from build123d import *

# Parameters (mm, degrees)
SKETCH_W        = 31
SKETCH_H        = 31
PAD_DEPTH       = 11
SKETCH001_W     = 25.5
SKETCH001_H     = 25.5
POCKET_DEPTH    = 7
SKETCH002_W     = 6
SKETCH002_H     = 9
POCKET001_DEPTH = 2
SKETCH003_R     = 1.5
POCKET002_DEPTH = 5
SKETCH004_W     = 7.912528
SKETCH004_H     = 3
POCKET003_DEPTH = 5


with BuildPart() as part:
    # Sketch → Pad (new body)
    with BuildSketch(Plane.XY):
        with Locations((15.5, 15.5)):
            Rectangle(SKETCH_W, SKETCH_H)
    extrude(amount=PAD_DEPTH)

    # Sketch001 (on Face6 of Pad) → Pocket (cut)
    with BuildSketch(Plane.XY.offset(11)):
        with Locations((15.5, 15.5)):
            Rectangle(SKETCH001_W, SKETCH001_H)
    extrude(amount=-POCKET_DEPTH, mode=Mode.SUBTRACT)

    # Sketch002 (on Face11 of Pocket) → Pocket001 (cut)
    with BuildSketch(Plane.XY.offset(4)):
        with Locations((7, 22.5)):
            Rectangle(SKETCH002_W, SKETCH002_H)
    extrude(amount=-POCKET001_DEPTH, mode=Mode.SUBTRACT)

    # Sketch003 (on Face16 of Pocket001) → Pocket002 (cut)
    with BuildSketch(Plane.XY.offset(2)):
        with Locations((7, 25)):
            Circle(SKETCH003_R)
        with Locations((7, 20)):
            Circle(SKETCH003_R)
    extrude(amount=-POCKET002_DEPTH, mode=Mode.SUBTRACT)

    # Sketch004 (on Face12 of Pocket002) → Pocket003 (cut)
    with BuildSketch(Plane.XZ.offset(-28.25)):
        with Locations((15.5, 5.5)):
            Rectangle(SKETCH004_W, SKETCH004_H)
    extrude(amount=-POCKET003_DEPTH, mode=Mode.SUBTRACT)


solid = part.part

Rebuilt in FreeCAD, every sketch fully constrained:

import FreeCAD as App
import Part
import Sketcher
from FreeCAD import Vector
Q = App.Units.Quantity


def add_polygon(sketch, points):
    """Adds a closed chain of lines whose ends are joined by coincident constraints."""
    first, n = sketch.GeometryCount, len(points)
    for a, b in zip(points, points[1:] + points[:1]):
        sketch.addGeometry(Part.LineSegment(App.Vector(*a, 0), App.Vector(*b, 0)), False)
    for i in range(n):
        sketch.addConstraint(Sketcher.Constraint("Coincident", first + i, 2, first + (i + 1) % n, 1))

doc = App.newDocument("Part")
body = doc.addObject("PartDesign::Body", "Body")

sketch1 = doc.addObject("Sketcher::SketchObject", "Sketch")
body.addObject(sketch1)
sketch1.AttachmentSupport = (doc.XY_Plane, [""])
sketch1.MapMode = "FlatFace"
add_polygon(sketch1, [(0, 31), (0, 0), (31, 0), (31, 31)])
sketch1.addConstraint([
    Sketcher.Constraint("Vertical", 0),
    Sketcher.Constraint("Horizontal", 1),
    Sketcher.Constraint("Vertical", 2),
    Sketcher.Constraint("Horizontal", 3),
    Sketcher.Constraint("Coincident", 0, 2, -1, 1),
    Sketcher.Constraint("Equal", 3, 0),
    Sketcher.Constraint("DistanceX", 1, 1, 1, 2, Q("31 mm")),
])
pad1 = doc.addObject("PartDesign::Pad", "Pad")
body.addObject(pad1)
pad1.Profile = sketch1
pad1.Length = 11

sketch2 = doc.addObject("Sketcher::SketchObject", "Sketch001")
body.addObject(sketch2)
sketch2.AttachmentSupport = (doc.XY_Plane, [""])
sketch2.MapMode = "FlatFace"
sketch2.AttachmentOffset = App.Placement(Vector(0, 0, 11), App.Rotation())
add_polygon(sketch2, [(3, 28), (3, 3), (28, 3), (28, 28)])
sketch2.addConstraint([
    Sketcher.Constraint("Vertical", 0),
    Sketcher.Constraint("Horizontal", 1),
    Sketcher.Constraint("Vertical", 2),
    Sketcher.Constraint("Horizontal", 3),
    Sketcher.Constraint("Equal", 3, 0),
    Sketcher.Constraint("DistanceX", 1, 1, 1, 2, Q("25.5 mm")),
    Sketcher.Constraint("DistanceX", -1, 1, 0, 2, Q("2.75 mm")),
    Sketcher.Constraint("DistanceY", -1, 1, 0, 2, Q("2.75 mm")),
])
pocket1 = doc.addObject("PartDesign::Pocket", "Pocket")
body.addObject(pocket1)
pocket1.Profile = sketch2
pocket1.Length = 7

sketch3 = doc.addObject("Sketcher::SketchObject", "Sketch002")
body.addObject(sketch3)
sketch3.AttachmentSupport = (doc.XY_Plane, [""])
sketch3.MapMode = "FlatFace"
sketch3.AttachmentOffset = App.Placement(Vector(0, 0, 4), App.Rotation())
add_polygon(sketch3, [(4, 27), (4, 18), (10, 18), (10, 27)])
sketch3.addConstraint([
    Sketcher.Constraint("Vertical", 0),
    Sketcher.Constraint("Horizontal", 1),
    Sketcher.Constraint("Vertical", 2),
    Sketcher.Constraint("Horizontal", 3),
    Sketcher.Constraint("DistanceX", 1, 1, 1, 2, Q("6 mm")),
    Sketcher.Constraint("DistanceY", 0, 2, 0, 1, Q("9 mm")),
    Sketcher.Constraint("DistanceX", -1, 1, 0, 2, Q("4 mm")),
    Sketcher.Constraint("DistanceY", -1, 1, 0, 2, Q("18 mm")),
])
pocket2 = doc.addObject("PartDesign::Pocket", "Pocket001")
body.addObject(pocket2)
pocket2.Profile = sketch3
pocket2.Length = 2

sketch4 = doc.addObject("Sketcher::SketchObject", "Sketch003")
body.addObject(sketch4)
sketch4.AttachmentSupport = (doc.XY_Plane, [""])
sketch4.MapMode = "FlatFace"
sketch4.AttachmentOffset = App.Placement(Vector(0, 0, 2), App.Rotation())
sketch4.addGeometry([
    Part.Circle(Vector(7, 25, 0), Vector(0, 0, 1), 1.5),
    Part.Circle(Vector(7, 20, 0), Vector(0, 0, 1), 1.5),
], False)
sketch4.addConstraint([
    Sketcher.Constraint("Equal", 0, 1),
    Sketcher.Constraint("Vertical", 0, 3, 1, 3),
    Sketcher.Constraint("Diameter", 0, Q("3 mm")),
    Sketcher.Constraint("DistanceX", -1, 1, 0, 3, Q("7 mm")),
    Sketcher.Constraint("DistanceY", -1, 1, 0, 3, Q("25 mm")),
    Sketcher.Constraint("DistanceY", -1, 1, 1, 3, Q("20 mm")),
])
pocket3 = doc.addObject("PartDesign::Pocket", "Pocket002")
body.addObject(pocket3)
pocket3.Profile = sketch4
pocket3.Length = 5

sketch5 = doc.addObject("Sketcher::SketchObject", "Sketch004")
body.addObject(sketch5)
sketch5.AttachmentSupport = (doc.XZ_Plane, [""])
sketch5.MapMode = "FlatFace"
sketch5.AttachmentOffset = App.Placement(Vector(0, 0, -28.25), App.Rotation())
add_polygon(sketch5, [(11.5, 7), (11.5, 4), (19.5, 4), (19.5, 7)])
sketch5.addConstraint([
    Sketcher.Constraint("Vertical", 0),
    Sketcher.Constraint("Horizontal", 1),
    Sketcher.Constraint("Vertical", 2),
    Sketcher.Constraint("Horizontal", 3),
    Sketcher.Constraint("DistanceY", 0, 2, 0, 1, Q("3 mm")),
    Sketcher.Constraint("DistanceY", -1, 1, 0, 2, Q("4 mm")),
    Sketcher.Constraint("DistanceX", 1, 1, 1, 2, Q("7.912528 mm")),
    Sketcher.Constraint("DistanceX", -1, 1, 0, 2, Q("11.543736 mm")),
])
pocket4 = doc.addObject("PartDesign::Pocket", "Pocket003")
body.addObject(pocket4)
pocket4.Profile = sketch5
pocket4.Length = 5

doc.recompute()
